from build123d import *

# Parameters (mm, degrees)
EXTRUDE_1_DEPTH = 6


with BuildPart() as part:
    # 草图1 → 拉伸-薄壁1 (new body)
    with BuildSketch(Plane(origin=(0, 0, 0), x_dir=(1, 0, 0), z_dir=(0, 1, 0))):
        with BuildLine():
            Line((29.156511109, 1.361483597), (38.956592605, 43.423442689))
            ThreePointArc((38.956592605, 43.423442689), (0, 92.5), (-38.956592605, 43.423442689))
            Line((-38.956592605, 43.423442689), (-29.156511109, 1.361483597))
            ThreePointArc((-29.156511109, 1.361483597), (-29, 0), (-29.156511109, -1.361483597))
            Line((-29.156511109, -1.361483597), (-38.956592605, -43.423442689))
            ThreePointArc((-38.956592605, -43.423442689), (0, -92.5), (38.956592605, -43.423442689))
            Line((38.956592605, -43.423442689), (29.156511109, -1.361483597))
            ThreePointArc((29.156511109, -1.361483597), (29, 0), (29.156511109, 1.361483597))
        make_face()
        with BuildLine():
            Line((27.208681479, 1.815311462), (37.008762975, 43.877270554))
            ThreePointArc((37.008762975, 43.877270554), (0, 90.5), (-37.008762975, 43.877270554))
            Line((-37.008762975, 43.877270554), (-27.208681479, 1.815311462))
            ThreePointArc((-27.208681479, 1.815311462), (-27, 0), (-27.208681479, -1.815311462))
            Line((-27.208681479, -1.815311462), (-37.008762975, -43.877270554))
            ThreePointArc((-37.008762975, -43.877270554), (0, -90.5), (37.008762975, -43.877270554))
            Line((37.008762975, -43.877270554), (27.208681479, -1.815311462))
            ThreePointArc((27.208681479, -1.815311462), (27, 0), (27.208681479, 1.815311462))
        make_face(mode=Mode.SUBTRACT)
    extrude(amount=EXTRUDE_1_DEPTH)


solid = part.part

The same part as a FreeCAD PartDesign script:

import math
import FreeCAD as App
import Part
import Sketcher

V = App.Vector
Q = App.Units.Quantity

doc = App.newDocument("Part")
body = doc.addObject("PartDesign::Body", "Body")

# Sketch on XZ plane
sketch1 = body.newObject("Sketcher::SketchObject", "Sketch")
sketch1.AttachmentSupport = (doc.getObject("XZ_Plane"), [""])
sketch1.MapMode = "FlatFace"
sketch1.addGeometry([
    Part.LineSegment(V(29.156511, -1.361484, 0), V(38.956593, -43.423443, 0)),  # 0
    Part.ArcOfCircle(Part.Circle(V(0, -52.5, 0), V(0, 0, 1), 40), math.radians(166.88455), math.radians(373.11545)),  # 1
    Part.LineSegment(V(-38.956593, -43.423443, 0), V(-29.156511, -1.361484, 0)),  # 2
    Part.ArcOfCircle(Part.Circle(V(-35, 0, 0), V(0, 0, 1), 6), math.radians(-13.11545), math.radians(13.11545)),  # 3
    Part.LineSegment(V(-29.156511, 1.361484, 0), V(-38.956593, 43.423443, 0)),  # 4
    Part.ArcOfCircle(Part.Circle(V(0, 52.5, 0), V(0, 0, 1), 40), math.radians(-13.11545), math.radians(193.11545)),  # 5
    Part.LineSegment(V(38.956593, 43.423443, 0), V(29.156511, 1.361484, 0)),  # 6
    Part.ArcOfCircle(Part.Circle(V(35, 0, 0), V(0, 0, 1), 6), math.radians(166.88455), math.radians(193.11545)),  # 7
    Part.LineSegment(V(37.008763, -43.877271, 0), V(27.208681, -1.815311, 0)),  # 8
    Part.ArcOfCircle(Part.Circle(V(35, 0, 0), V(0, 0, 1), 8), math.radians(166.88455), math.radians(193.11545)),  # 9
    Part.LineSegment(V(27.208681, 1.815311, 0), V(37.008763, 43.877271, 0)),  # 10
    Part.ArcOfCircle(Part.Circle(V(0, 52.5, 0), V(0, 0, 1), 38), math.radians(-13.11545), math.radians(193.11545)),  # 11
    Part.LineSegment(V(-37.008763, 43.877271, 0), V(-27.208681, 1.815311, 0)),  # 12
    Part.ArcOfCircle(Part.Circle(V(-35, 0, 0), V(0, 0, 1), 8), math.radians(-13.11545), math.radians(13.11545)),  # 13
    Part.LineSegment(V(-27.208681, -1.815311, 0), V(-37.008763, -43.877271, 0)),  # 14
    Part.ArcOfCircle(Part.Circle(V(0, -52.5, 0), V(0, 0, 1), 38), math.radians(166.88455), math.radians(373.11545)),  # 15
], False)
sketch1.addConstraint([
    Sketcher.Constraint("Tangent", 0, 2, 1, 2),
    Sketcher.Constraint("Tangent", 1, 1, 2, 1),
    Sketcher.Constraint("Tangent", 2, 2, 3, 1),
    Sketcher.Constraint("Tangent", 3, 2, 4, 1),
    Sketcher.Constraint("Tangent", 4, 2, 5, 2),
    Sketcher.Constraint("Tangent", 5, 1, 6, 1),
    Sketcher.Constraint("Tangent", 6, 2, 7, 1),
    Sketcher.Constraint("Tangent", 7, 2, 0, 1),
    Sketcher.Constraint("Tangent", 8, 2, 9, 2),
    Sketcher.Constraint("Tangent", 9, 1, 10, 1),
    Sketcher.Constraint("Tangent", 10, 2, 11, 1),
    Sketcher.Constraint("Tangent", 11, 2, 12, 1),
    Sketcher.Constraint("Tangent", 12, 2, 13, 2),
    Sketcher.Constraint("Tangent", 13, 1, 14, 1),
    Sketcher.Constraint("Tangent", 14, 2, 15, 1),
    Sketcher.Constraint("Tangent", 15, 2, 8, 1),
    Sketcher.Constraint("Coincident", 9, 3, 7, 3),
    Sketcher.Constraint("Coincident", 11, 3, 5, 3),
    Sketcher.Constraint("Coincident", 13, 3, 3, 3),
    Sketcher.Constraint("Coincident", 15, 3, 1, 3),
    Sketcher.Constraint("Equal", 1, 5),
    Sketcher.Constraint("Equal", 3, 7),
    Sketcher.Constraint("Equal", 9, 13),
    Sketcher.Constraint("Equal", 11, 15),
    Sketcher.Constraint("Symmetric", 1, 3, 5, 3, -1, 1),
    Sketcher.Constraint("Symmetric", 3, 3, 7, 3, -1, 1),
    Sketcher.Constraint("Symmetric", 0, 2, 1, 1, -2),
    Sketcher.Constraint("Parallel", 4, 8),
    Sketcher.Constraint("Radius", 1, Q("40 mm")),
    Sketcher.Constraint("Radius", 3, Q("6 mm")),
    Sketcher.Constraint("Radius", 9, Q("8 mm")),
    Sketcher.Constraint("DistanceX", 3, 3, -1, 1, Q("35 mm")),
    Sketcher.Constraint("DistanceY", 1, 3, 5, 3, Q("105 mm")),
])
pad1 = body.newObject("PartDesign::Pad", "Pad")
pad1.Profile = sketch1
pad1.Length = 6
pad1.Reversed = True

doc.recompute()
